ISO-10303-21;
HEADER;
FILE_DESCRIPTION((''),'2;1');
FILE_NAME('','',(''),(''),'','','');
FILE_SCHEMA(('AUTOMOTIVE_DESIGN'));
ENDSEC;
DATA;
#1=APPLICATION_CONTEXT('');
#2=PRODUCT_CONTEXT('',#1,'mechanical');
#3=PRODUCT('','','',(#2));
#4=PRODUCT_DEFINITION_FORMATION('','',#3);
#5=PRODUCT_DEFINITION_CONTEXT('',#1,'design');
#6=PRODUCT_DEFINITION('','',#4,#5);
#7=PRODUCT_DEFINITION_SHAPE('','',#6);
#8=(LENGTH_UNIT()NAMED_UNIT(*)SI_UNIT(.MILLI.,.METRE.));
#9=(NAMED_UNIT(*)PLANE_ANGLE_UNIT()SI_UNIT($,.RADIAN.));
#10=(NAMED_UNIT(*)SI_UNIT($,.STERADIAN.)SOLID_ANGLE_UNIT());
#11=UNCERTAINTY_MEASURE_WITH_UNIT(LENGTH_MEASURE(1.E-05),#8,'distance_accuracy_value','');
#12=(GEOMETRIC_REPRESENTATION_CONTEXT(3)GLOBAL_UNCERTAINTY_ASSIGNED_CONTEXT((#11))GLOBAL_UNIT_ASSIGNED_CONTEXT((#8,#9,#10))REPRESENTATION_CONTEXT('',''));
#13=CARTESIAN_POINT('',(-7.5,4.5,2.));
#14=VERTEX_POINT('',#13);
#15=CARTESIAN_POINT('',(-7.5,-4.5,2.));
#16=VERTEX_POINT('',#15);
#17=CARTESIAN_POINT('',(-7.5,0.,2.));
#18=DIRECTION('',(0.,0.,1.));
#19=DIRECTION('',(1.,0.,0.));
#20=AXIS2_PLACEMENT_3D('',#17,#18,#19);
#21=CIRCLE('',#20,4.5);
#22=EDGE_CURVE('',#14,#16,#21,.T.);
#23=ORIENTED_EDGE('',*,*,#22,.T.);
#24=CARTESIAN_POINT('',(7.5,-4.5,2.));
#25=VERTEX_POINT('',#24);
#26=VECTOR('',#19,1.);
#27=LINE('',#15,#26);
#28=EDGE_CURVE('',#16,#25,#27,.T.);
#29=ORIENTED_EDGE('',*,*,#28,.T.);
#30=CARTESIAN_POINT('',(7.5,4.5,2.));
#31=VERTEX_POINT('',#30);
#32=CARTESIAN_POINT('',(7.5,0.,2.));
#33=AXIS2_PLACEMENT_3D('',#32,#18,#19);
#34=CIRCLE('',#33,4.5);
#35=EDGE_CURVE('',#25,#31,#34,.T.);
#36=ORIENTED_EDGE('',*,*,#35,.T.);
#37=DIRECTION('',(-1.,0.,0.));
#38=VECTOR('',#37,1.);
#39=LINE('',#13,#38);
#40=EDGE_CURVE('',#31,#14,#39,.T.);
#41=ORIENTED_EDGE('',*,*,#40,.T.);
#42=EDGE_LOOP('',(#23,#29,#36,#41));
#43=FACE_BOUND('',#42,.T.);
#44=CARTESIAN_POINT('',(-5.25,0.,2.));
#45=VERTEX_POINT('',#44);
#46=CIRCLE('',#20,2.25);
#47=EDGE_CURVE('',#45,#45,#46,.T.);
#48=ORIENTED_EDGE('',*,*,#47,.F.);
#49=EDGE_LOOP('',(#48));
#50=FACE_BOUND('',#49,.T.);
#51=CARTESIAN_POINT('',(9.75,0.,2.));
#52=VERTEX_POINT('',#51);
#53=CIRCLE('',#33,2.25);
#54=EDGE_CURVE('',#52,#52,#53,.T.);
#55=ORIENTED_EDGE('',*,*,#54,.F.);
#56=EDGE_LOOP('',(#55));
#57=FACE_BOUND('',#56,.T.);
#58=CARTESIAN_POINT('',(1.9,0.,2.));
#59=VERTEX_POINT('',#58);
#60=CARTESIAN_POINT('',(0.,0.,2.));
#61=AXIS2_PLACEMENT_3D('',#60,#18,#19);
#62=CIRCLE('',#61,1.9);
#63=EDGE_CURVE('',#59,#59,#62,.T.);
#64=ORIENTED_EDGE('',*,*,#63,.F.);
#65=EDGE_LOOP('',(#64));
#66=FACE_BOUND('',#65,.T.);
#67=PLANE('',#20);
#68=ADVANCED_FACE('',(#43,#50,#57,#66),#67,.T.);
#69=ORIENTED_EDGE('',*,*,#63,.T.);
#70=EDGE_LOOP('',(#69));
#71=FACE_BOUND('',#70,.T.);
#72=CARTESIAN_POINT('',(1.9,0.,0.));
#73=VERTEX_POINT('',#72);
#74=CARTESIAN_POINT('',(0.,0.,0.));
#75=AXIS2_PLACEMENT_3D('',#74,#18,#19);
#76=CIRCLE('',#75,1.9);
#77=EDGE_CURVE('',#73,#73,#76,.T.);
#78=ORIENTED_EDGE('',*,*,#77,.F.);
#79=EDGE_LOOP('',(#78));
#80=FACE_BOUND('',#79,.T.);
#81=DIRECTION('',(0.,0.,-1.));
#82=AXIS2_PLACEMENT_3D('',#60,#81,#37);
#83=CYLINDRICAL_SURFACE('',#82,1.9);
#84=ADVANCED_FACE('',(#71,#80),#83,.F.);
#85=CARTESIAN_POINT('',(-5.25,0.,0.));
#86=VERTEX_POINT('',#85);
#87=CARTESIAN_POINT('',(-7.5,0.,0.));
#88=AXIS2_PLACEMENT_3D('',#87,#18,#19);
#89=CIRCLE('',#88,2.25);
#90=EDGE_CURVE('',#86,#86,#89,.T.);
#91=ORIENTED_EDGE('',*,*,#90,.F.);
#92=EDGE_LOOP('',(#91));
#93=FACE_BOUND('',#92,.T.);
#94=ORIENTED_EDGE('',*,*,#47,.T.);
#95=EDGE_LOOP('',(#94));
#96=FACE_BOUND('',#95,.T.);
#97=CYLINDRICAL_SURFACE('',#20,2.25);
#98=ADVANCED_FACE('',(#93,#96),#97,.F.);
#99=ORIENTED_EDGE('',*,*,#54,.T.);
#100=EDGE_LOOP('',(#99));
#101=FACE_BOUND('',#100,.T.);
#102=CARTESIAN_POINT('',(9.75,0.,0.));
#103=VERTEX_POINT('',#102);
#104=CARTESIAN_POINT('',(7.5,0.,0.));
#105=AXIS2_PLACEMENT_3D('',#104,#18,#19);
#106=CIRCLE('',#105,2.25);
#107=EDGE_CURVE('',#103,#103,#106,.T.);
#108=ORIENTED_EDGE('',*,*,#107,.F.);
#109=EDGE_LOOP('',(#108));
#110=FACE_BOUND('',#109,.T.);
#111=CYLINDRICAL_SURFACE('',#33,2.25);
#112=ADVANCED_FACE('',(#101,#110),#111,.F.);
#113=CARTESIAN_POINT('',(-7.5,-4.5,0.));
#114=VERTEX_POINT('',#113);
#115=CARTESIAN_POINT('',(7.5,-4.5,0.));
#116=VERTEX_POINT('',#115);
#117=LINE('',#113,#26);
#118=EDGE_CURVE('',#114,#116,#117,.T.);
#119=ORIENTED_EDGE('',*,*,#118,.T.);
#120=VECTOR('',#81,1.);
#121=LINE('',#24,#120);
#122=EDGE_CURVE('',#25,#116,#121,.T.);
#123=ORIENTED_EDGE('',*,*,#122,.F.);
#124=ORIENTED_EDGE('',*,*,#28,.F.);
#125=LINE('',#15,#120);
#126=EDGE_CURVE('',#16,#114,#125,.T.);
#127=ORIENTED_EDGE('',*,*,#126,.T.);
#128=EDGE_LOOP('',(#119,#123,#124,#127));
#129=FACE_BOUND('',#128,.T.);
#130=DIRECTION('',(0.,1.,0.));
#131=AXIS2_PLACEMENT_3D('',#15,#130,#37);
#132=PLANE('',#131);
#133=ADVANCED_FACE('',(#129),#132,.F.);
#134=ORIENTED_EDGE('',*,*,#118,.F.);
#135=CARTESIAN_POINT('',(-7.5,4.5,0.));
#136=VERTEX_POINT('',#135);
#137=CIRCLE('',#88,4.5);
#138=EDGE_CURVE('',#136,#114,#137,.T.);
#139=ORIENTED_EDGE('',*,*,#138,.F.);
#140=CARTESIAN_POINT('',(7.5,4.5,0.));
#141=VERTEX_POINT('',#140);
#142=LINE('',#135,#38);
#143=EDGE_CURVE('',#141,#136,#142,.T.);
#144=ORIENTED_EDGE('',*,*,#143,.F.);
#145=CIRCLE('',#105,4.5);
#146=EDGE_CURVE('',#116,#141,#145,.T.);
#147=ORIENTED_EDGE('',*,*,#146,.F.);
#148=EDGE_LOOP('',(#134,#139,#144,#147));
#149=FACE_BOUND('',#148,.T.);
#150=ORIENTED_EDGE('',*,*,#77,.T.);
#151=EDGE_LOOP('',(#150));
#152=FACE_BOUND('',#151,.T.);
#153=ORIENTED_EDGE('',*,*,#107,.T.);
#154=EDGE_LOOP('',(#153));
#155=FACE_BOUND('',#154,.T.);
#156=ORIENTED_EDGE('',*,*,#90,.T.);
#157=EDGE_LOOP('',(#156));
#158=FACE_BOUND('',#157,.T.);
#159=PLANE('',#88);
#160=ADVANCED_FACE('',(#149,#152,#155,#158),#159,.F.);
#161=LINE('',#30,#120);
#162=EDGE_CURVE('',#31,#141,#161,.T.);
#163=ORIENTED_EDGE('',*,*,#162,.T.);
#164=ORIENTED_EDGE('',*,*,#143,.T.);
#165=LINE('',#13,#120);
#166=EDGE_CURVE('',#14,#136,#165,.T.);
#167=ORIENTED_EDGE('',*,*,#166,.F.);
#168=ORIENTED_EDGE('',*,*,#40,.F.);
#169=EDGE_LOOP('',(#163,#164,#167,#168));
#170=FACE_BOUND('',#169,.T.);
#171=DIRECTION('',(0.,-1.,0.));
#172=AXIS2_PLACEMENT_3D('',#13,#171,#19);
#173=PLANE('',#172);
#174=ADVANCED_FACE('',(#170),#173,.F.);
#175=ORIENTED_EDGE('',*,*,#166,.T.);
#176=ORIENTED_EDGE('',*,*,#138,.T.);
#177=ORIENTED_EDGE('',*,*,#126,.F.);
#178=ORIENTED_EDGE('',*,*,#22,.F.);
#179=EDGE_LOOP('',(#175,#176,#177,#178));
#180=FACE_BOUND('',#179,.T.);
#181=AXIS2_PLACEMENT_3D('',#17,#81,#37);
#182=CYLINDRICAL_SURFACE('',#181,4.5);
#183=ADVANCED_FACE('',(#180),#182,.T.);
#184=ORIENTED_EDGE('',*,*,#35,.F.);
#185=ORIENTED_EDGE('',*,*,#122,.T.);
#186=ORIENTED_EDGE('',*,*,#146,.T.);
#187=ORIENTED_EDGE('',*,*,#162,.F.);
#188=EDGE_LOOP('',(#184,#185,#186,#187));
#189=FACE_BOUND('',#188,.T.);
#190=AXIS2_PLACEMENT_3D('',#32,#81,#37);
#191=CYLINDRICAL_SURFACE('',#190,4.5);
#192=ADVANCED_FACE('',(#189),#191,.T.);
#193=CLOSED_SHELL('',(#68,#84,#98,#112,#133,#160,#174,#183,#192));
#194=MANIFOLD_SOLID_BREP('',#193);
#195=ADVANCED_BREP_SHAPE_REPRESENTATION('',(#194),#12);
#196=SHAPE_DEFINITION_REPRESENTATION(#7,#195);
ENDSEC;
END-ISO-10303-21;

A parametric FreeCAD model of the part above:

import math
import FreeCAD as App
import Part
import Sketcher
from FreeCAD import Vector
Q = App.Units.Quantity

doc = App.newDocument("Part")
body = doc.addObject("PartDesign::Body", "Body")

# Sketch on XY plane
sketch1 = body.newObject("Sketcher::SketchObject", "Sketch")
sketch1.AttachmentSupport = (doc.getObject("XY_Plane"), [""])
sketch1.MapMode = "FlatFace"
sketch1.addGeometry(Part.LineSegment(Vector(7.5, 4.5, 0), Vector(-7.5, 4.5, 0)), False)
sketch1.addGeometry(Part.ArcOfCircle(Part.Circle(Vector(-7.5, 0, 0), Vector(0, 0, 1), 4.5), math.radians(90), math.radians(270)), False)
sketch1.addGeometry(Part.LineSegment(Vector(-7.5, -4.5, 0), Vector(7.5, -4.5, 0)), False)
sketch1.addGeometry(Part.ArcOfCircle(Part.Circle(Vector(7.5, 0, 0), Vector(0, 0, 1), 4.5), math.radians(-90), math.radians(90)), False)
sketch1.addGeometry(Part.Circle(Vector(0, 0, 0), Vector(0, 0, 1), 1.9), False)
sketch1.addConstraint(Sketcher.Constraint("Tangent", 0, 2, 1, 1))
sketch1.addConstraint(Sketcher.Constraint("Tangent", 1, 2, 2, 1))
sketch1.addConstraint(Sketcher.Constraint("Tangent", 2, 2, 3, 1))
sketch1.addConstraint(Sketcher.Constraint("Tangent", 3, 2, 0, 1))
sketch1.addConstraint(Sketcher.Constraint("Horizontal", 0))
sketch1.addConstraint(Sketcher.Constraint("Horizontal", 2))
sketch1.addConstraint(Sketcher.Constraint("Coincident", 4, 3, -1, 1))
sketch1.addConstraint(Sketcher.Constraint("Symmetric", 1, 3, 3, 3, -1, 1))
sketch1.addConstraint(Sketcher.Constraint("Diameter", 4, Q("3.8 mm")))
sketch1.addConstraint(Sketcher.Constraint("Radius", 1, Q("4.5 mm")))
sketch1.addConstraint(Sketcher.Constraint("DistanceX", 0, 2, 0, 1, Q("15 mm")))
pad1 = body.newObject("PartDesign::Pad", "Pad")
pad1.Profile = sketch1
pad1.Length = 2

# Sketch on XY plane
sketch2 = body.newObject("Sketcher::SketchObject", "Sketch001")
sketch2.AttachmentSupport = (doc.getObject("XY_Plane"), [""])
sketch2.MapMode = "FlatFace"
sketch2.AttachmentOffset = App.Placement(Vector(0, 0, 2), App.Rotation())
sketch2.addGeometry(Part.Circle(Vector(-7.5, 0, 0), Vector(0, 0, 1), 2.25), False)
sketch2.addGeometry(Part.Circle(Vector(7.5, 0, 0), Vector(0, 0, 1), 2.25), False)
sketch2.addConstraint(Sketcher.Constraint("Equal", 0, 1))
sketch2.addConstraint(Sketcher.Constraint("Symmetric", 0, 3, 1, 3, -1, 1))
sketch2.addConstraint(Sketcher.Constraint("PointOnObject", 0, 3, -1))
sketch2.addConstraint(Sketcher.Constraint("Diameter", 0, Q("4.5 mm")))
sketch2.addConstraint(Sketcher.Constraint("DistanceX", 0, 3, 1, 3, Q("15 mm")))
doc.recompute()
hole = body.newObject("PartDesign::Hole", "Hole")
hole.Profile = sketch2
hole.ThreadType = "None"
hole.Diameter = 4.5
hole.DepthType = "ThroughAll"

doc.recompute()
